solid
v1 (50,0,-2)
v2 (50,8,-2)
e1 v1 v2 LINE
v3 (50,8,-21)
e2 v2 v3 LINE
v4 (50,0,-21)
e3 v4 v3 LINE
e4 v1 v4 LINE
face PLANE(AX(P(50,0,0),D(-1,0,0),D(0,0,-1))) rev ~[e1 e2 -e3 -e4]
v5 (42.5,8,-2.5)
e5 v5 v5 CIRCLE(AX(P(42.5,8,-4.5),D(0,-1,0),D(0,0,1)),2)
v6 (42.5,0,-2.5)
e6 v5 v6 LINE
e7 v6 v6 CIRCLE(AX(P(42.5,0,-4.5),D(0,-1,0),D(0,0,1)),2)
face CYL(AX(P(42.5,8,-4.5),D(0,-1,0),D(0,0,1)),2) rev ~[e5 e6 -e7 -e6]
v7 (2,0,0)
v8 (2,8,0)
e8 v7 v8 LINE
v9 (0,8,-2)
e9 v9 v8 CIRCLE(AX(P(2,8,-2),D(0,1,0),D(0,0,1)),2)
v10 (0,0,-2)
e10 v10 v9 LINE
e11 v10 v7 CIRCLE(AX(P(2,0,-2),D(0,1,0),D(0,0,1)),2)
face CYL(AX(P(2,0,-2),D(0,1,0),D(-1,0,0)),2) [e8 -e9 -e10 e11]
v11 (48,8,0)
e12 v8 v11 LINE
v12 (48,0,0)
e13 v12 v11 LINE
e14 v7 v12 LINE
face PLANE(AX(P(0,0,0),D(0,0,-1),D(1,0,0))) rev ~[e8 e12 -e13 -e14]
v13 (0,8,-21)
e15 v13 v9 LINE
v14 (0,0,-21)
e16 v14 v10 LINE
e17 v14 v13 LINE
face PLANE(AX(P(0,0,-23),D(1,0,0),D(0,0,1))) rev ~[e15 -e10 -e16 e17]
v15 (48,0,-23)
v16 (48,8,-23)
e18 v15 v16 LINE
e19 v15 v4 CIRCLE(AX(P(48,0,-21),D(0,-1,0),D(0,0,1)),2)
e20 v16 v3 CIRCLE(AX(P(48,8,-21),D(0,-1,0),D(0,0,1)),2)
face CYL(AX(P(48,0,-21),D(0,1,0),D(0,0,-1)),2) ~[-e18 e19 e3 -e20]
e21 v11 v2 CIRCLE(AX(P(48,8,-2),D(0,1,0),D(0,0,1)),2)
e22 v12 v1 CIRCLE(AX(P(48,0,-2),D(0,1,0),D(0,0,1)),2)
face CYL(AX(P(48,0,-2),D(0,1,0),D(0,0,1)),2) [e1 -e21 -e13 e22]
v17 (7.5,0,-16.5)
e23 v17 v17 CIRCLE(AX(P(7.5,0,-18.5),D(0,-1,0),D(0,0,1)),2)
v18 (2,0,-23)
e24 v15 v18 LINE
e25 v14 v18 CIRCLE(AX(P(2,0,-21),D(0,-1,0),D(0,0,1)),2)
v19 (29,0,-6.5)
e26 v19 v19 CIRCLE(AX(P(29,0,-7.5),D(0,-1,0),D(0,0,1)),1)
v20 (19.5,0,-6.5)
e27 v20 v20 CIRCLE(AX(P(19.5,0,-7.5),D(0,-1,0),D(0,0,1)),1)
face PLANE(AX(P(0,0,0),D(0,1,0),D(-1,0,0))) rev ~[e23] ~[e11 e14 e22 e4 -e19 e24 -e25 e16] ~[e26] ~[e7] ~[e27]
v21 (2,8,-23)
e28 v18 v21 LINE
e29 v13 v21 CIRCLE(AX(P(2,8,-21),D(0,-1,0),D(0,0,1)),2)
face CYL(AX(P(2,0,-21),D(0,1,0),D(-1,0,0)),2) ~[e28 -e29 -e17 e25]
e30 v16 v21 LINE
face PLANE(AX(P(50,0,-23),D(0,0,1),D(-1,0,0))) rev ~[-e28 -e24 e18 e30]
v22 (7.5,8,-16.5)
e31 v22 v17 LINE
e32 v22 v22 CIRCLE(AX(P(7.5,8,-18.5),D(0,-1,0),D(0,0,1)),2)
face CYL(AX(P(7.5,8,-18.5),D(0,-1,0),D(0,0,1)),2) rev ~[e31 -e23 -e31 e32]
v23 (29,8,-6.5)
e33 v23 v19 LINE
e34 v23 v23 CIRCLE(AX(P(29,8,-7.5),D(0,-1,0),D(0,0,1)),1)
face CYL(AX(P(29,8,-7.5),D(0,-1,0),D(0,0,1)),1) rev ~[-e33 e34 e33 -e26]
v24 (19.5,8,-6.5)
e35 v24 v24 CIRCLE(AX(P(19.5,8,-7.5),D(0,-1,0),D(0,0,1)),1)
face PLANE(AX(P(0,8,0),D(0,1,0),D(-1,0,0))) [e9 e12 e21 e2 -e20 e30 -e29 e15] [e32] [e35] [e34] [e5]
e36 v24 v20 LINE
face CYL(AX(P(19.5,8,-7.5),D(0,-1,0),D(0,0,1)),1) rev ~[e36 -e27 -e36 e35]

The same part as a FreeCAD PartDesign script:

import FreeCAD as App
import Part
import Sketcher

V = App.Vector
Q = App.Units.Quantity


def edges_at(feature, points):
    """Names of the edges that pass closest to the given points."""
    edges = feature.Shape.Edges
    near = lambda p: min(range(len(edges)), key=lambda i: edges[i].distToShape(Part.Vertex(*p))[0])
    return sorted({f"Edge{near(p) + 1}" for p in points})

doc = App.newDocument("Part")
params = doc.addObject("Spreadsheet::Sheet", "Params")
for row, (alias, value) in enumerate([
    ("sketch1_width", "50 mm"),
    ("sketch1_height", "23 mm"),
    ("pad1_length", "8 mm"),
    ("sketch2_diameter", "2 mm"),
    ("hole_diameter", "2 mm"),
    ("sketch3_diameter", "4 mm"),
    ("hole2_diameter", "4 mm"),
    ("fillet_radius", "2 mm"),
], start=1):
    params.set(f"A{row}", alias)
    params.set(f"B{row}", "=" + value)
    params.setAlias(f"B{row}", alias)

body = doc.addObject("PartDesign::Body", "Body")

# Sketch on XZ plane
sketch1 = doc.addObject("Sketcher::SketchObject", "Sketch")
body.addObject(sketch1)
sketch1.AttachmentSupport = (doc.XZ_Plane, [""])
sketch1.MapMode = "FlatFace"
sketch1.addGeometry([
    Part.LineSegment(V(0, -23, 0), V(0, 0, 0)),
    Part.LineSegment(V(0, 0, 0), V(50, 0, 0)),
    Part.LineSegment(V(50, 0, 0), V(50, -23, 0)),
    Part.LineSegment(V(50, -23, 0), V(0, -23, 0)),
], False)
sketch1.addConstraint([
    Sketcher.Constraint("Coincident", 0, 2, 1, 1),
    Sketcher.Constraint("Coincident", 1, 2, 2, 1),
    Sketcher.Constraint("Coincident", 2, 2, 3, 1),
    Sketcher.Constraint("Coincident", 3, 2, 0, 1),
    Sketcher.Constraint("Vertical", 0),
    Sketcher.Constraint("Horizontal", 1),
    Sketcher.Constraint("Vertical", 2),
    Sketcher.Constraint("Horizontal", 3),
    Sketcher.Constraint("Coincident", 0, 2, -1, 1),
    Sketcher.Constraint("DistanceX", 1, 1, 1, 2, Q("50 mm")),
    Sketcher.Constraint("DistanceY", 0, 1, 0, 2, Q("23 mm")),
])
sketch1.setExpression("Constraints[9]", "Params.sketch1_width")
sketch1.setExpression("Constraints[10]", "Params.sketch1_height")
pad1 = doc.addObject("PartDesign::Pad", "Pad")
body.addObject(pad1)
pad1.Profile = sketch1
pad1.setExpression("Length", "Params.pad1_length")
pad1.Reversed = True

# Sketch on XZ plane
sketch2 = doc.addObject("Sketcher::SketchObject", "Sketch001")
body.addObject(sketch2)
sketch2.AttachmentSupport = (doc.XZ_Plane, [""])
sketch2.MapMode = "FlatFace"
sketch2.AttachmentOffset = App.Placement(V(0, 0, -8), App.Rotation())
sketch2.addGeometry([
    Part.Circle(V(19.5, -7.5, 0), V(0, 0, 1), 1),
    Part.Circle(V(29, -7.5, 0), V(0, 0, 1), 1),
], False)
sketch2.addConstraint([
    Sketcher.Constraint("Equal", 0, 1),
    Sketcher.Constraint("Horizontal", 0, 3, 1, 3),
    Sketcher.Constraint("Diameter", 0, Q("2 mm")),
    Sketcher.Constraint("DistanceX", -1, 1, 1, 3, Q("29 mm")),
    Sketcher.Constraint("DistanceX", -1, 1, 0, 3, Q("19.5 mm")),
    Sketcher.Constraint("DistanceY", 0, 3, -1, 1, Q("7.5 mm")),
])
sketch2.setExpression("Constraints[2]", "Params.sketch2_diameter")
doc.recompute()
hole = doc.addObject("PartDesign::Hole", "Hole")
body.addObject(hole)
hole.Profile = sketch2
hole.ThreadType = "None"
hole.setExpression("Diameter", "Params.hole_diameter")
hole.DepthType = "ThroughAll"
hole.Reversed = True

# Sketch on XZ plane
sketch3 = doc.addObject("Sketcher::SketchObject", "Sketch002")
body.addObject(sketch3)
sketch3.AttachmentSupport = (doc.XZ_Plane, [""])
sketch3.MapMode = "FlatFace"
sketch3.AttachmentOffset = App.Placement(V(0, 0, -8), App.Rotation())
sketch3.addGeometry([
    Part.Circle(V(7.5, -18.5, 0), V(0, 0, 1), 2),
    Part.Circle(V(42.5, -4.5, 0), V(0, 0, 1), 2),
], False)
sketch3.addConstraint([
    Sketcher.Constraint("Equal", 0, 1),
    Sketcher.Constraint("Diameter", 0, Q("4 mm")),
    Sketcher.Constraint("DistanceX", 0, 3, 1, 3, Q("35 mm")),
    Sketcher.Constraint("DistanceY", 0, 3, 1, 3, Q("14 mm")),
    Sketcher.Constraint("DistanceX", -1, 1, 0, 3, Q("7.5 mm")),
    Sketcher.Constraint("DistanceY", 0, 3, -1, 1, Q("18.5 mm")),
])
sketch3.setExpression("Constraints[1]", "Params.sketch3_diameter")
doc.recompute()
hole2 = doc.addObject("PartDesign::Hole", "Hole001")
body.addObject(hole2)
hole2.Profile = sketch3
hole2.ThreadType = "None"
hole2.setExpression("Diameter", "Params.hole2_diameter")
hole2.DepthType = "ThroughAll"
hole2.Reversed = True
doc.recompute()

fillet = doc.addObject("PartDesign::Fillet", "Fillet")
body.addObject(fillet)
fillet.Base = (hole2, edges_at(hole2, [
    (0, 4, 0),
    (0, 4, -23),
    (50, 4, 0),
    (50, 4, -23),
]))
fillet.setExpression("Radius", "Params.fillet_radius")

doc.recompute()
